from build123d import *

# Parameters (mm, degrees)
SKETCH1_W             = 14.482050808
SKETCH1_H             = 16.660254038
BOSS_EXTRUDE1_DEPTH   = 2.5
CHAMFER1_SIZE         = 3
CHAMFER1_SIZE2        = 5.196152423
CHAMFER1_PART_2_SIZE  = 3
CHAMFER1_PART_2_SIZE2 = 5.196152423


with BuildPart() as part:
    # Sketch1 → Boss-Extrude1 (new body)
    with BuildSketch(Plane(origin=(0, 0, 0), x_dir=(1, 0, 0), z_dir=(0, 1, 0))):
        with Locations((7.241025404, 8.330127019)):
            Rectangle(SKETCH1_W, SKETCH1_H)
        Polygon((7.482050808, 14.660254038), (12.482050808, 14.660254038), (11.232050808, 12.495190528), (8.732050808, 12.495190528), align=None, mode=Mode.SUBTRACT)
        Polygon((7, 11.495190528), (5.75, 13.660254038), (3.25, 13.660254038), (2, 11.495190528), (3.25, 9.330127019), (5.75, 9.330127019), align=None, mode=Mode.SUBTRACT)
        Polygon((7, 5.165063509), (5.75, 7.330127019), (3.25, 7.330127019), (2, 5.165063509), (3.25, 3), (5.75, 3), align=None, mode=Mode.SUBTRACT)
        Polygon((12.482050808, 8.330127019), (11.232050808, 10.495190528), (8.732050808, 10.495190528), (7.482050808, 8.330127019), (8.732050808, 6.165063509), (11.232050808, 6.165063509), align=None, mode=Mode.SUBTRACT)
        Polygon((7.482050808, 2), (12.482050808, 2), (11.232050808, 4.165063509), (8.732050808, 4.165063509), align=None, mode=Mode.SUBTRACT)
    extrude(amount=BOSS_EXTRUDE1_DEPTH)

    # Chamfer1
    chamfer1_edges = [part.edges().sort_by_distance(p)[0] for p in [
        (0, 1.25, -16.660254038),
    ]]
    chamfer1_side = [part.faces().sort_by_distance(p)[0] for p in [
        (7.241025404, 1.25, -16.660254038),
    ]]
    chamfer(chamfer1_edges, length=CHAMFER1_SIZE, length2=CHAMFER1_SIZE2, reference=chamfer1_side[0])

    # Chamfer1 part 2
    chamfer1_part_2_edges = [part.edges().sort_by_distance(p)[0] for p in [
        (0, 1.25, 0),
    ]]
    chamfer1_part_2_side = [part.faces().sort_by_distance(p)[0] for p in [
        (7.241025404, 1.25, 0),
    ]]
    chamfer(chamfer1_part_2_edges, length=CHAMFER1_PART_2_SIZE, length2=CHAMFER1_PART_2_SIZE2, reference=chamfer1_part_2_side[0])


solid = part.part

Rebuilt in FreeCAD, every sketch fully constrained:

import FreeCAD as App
import Part
import Sketcher

V = App.Vector
Q = App.Units.Quantity


def edges_at(feature, points):
    """Names of the edges that pass closest to the given points."""
    edges = feature.Shape.Edges
    near = lambda p: min(range(len(edges)), key=lambda i: edges[i].distToShape(Part.Vertex(*p))[0])
    return sorted({f"Edge{near(p) + 1}" for p in points})

doc = App.newDocument("Part")
params = doc.addObject("Spreadsheet::Sheet", "Params")
for row, (alias, value) in enumerate([
    ("sketch1_width", "5 mm"),
    ("sketch1_width2", "2.5 mm"),
    ("pad1_length", "2.5 mm"),
    ("chamfer_size", "3 mm"),
    ("chamfer_size2", "5.196152 mm"),
    ("chamfer2_size", "3 mm"),
    ("chamfer2_size2", "5.196152 mm"),
], start=1):
    params.set(f"A{row}", alias)
    params.set(f"B{row}", "=" + value)
    params.setAlias(f"B{row}", alias)

body = doc.addObject("PartDesign::Body", "Body")

# Sketch on XZ plane
sketch1 = body.newObject("Sketcher::SketchObject", "Sketch")
sketch1.AttachmentSupport = (doc.getObject("XZ_Plane"), [""])
sketch1.MapMode = "FlatFace"
sketch1.addGeometry([
    Part.LineSegment(V(0, -16.660254, 0), V(0, 0, 0)),  # 0
    Part.LineSegment(V(0, 0, 0), V(14.482051, 0, 0)),  # 1
    Part.LineSegment(V(14.482051, 0, 0), V(14.482051, -16.660254, 0)),  # 2
    Part.LineSegment(V(14.482051, -16.660254, 0), V(0, -16.660254, 0)),  # 3
    Part.LineSegment(V(5.75, -7.330127, 0), V(7, -5.165064, 0)),  # 4
    Part.LineSegment(V(7, -5.165064, 0), V(5.75, -3, 0)),  # 5
    Part.LineSegment(V(5.75, -3, 0), V(3.25, -3, 0)),  # 6
    Part.LineSegment(V(3.25, -3, 0), V(2, -5.165064, 0)),  # 7
    Part.LineSegment(V(2, -5.165064, 0), V(3.25, -7.330127, 0)),  # 8
    Part.LineSegment(V(3.25, -7.330127, 0), V(5.75, -7.330127, 0)),  # 9
    Part.LineSegment(V(12.482051, -2, 0), V(7.482051, -2, 0)),  # 10
    Part.LineSegment(V(7.482051, -2, 0), V(8.732051, -4.165064, 0)),  # 11
    Part.LineSegment(V(8.732051, -4.165064, 0), V(11.232051, -4.165064, 0)),  # 12
    Part.LineSegment(V(11.232051, -4.165064, 0), V(12.482051, -2, 0)),  # 13
    Part.LineSegment(V(11.232051, -10.495191, 0), V(12.482051, -8.330127, 0)),  # 14
    Part.LineSegment(V(12.482051, -8.330127, 0), V(11.232051, -6.165064, 0)),  # 15
    Part.LineSegment(V(11.232051, -6.165064, 0), V(8.732051, -6.165064, 0)),  # 16
    Part.LineSegment(V(8.732051, -6.165064, 0), V(7.482051, -8.330127, 0)),  # 17
    Part.LineSegment(V(7.482051, -8.330127, 0), V(8.732051, -10.495191, 0)),  # 18
    Part.LineSegment(V(8.732051, -10.495191, 0), V(11.232051, -10.495191, 0)),  # 19
    Part.LineSegment(V(5.75, -13.660254, 0), V(7, -11.495191, 0)),  # 20
    Part.LineSegment(V(7, -11.495191, 0), V(5.75, -9.330127, 0)),  # 21
    Part.LineSegment(V(5.75, -9.330127, 0), V(3.25, -9.330127, 0)),  # 22
    Part.LineSegment(V(3.25, -9.330127, 0), V(2, -11.495191, 0)),  # 23
    Part.LineSegment(V(2, -11.495191, 0), V(3.25, -13.660254, 0)),  # 24
    Part.LineSegment(V(3.25, -13.660254, 0), V(5.75, -13.660254, 0)),  # 25
    Part.LineSegment(V(8.732051, -12.495191, 0), V(7.482051, -14.660254, 0)),  # 26
    Part.LineSegment(V(7.482051, -14.660254, 0), V(12.482051, -14.660254, 0)),  # 27
    Part.LineSegment(V(12.482051, -14.660254, 0), V(11.232051, -12.495191, 0)),  # 28
    Part.LineSegment(V(11.232051, -12.495191, 0), V(8.732051, -12.495191, 0)),  # 29
], False)
sketch1.addConstraint([
    Sketcher.Constraint("Coincident", 0, 2, 1, 1),
    Sketcher.Constraint("Coincident", 1, 2, 2, 1),
    Sketcher.Constraint("Coincident", 2, 2, 3, 1),
    Sketcher.Constraint("Coincident", 3, 2, 0, 1),
    Sketcher.Constraint("Coincident", 4, 2, 5, 1),
    Sketcher.Constraint("Coincident", 5, 2, 6, 1),
    Sketcher.Constraint("Coincident", 6, 2, 7, 1),
    Sketcher.Constraint("Coincident", 7, 2, 8, 1),
    Sketcher.Constraint("Coincident", 8, 2, 9, 1),
    Sketcher.Constraint("Coincident", 9, 2, 4, 1),
    Sketcher.Constraint("Coincident", 10, 2, 11, 1),
    Sketcher.Constraint("Coincident", 11, 2, 12, 1),
    Sketcher.Constraint("Coincident", 12, 2, 13, 1),
    Sketcher.Constraint("Coincident", 13, 2, 10, 1),
    Sketcher.Constraint("Coincident", 14, 2, 15, 1),
    Sketcher.Constraint("Coincident", 15, 2, 16, 1),
    Sketcher.Constraint("Coincident", 16, 2, 17, 1),
    Sketcher.Constraint("Coincident", 17, 2, 18, 1),
    Sketcher.Constraint("Coincident", 18, 2, 19, 1),
    Sketcher.Constraint("Coincident", 19, 2, 14, 1),
    Sketcher.Constraint("Coincident", 20, 2, 21, 1),
    Sketcher.Constraint("Coincident", 21, 2, 22, 1),
    Sketcher.Constraint("Coincident", 22, 2, 23, 1),
    Sketcher.Constraint("Coincident", 23, 2, 24, 1),
    Sketcher.Constraint("Coincident", 24, 2, 25, 1),
    Sketcher.Constraint("Coincident", 25, 2, 20, 1),
    Sketcher.Constraint("Coincident", 26, 2, 27, 1),
    Sketcher.Constraint("Coincident", 27, 2, 28, 1),
    Sketcher.Constraint("Coincident", 28, 2, 29, 1),
    Sketcher.Constraint("Coincident", 29, 2, 26, 1),
    Sketcher.Constraint("Vertical", 0),
    Sketcher.Constraint("Horizontal", 1),
    Sketcher.Constraint("Vertical", 2),
    Sketcher.Constraint("Horizontal", 3),
    Sketcher.Constraint("Horizontal", 6),
    Sketcher.Constraint("Horizontal", 9),
    Sketcher.Constraint("Horizontal", 10),
    Sketcher.Constraint("Horizontal", 12),
    Sketcher.Constraint("Horizontal", 16),
    Sketcher.Constraint("Horizontal", 19),
    Sketcher.Constraint("Horizontal", 22),
    Sketcher.Constraint("Horizontal", 25),
    Sketcher.Constraint("Horizontal", 27),
    Sketcher.Constraint("Horizontal", 29),
    Sketcher.Constraint("Coincident", 0, 2, -1, 1),
    Sketcher.Constraint("Parallel", 4, 7),
    Sketcher.Constraint("Parallel", 5, 8),
    Sketcher.Constraint("Parallel", 8, 11),
    Sketcher.Constraint("Parallel", 7, 13),
    Sketcher.Constraint("Parallel", 13, 14),
    Sketcher.Constraint("Parallel", 11, 15),
    Sketcher.Constraint("Parallel", 14, 17),
    Sketcher.Constraint("Parallel", 15, 18),
    Sketcher.Constraint("Parallel", 17, 20),
    Sketcher.Constraint("Parallel", 18, 21),
    Sketcher.Constraint("Parallel", 20, 23),
    Sketcher.Constraint("Parallel", 21, 24),
    Sketcher.Constraint("Parallel", 23, 26),
    Sketcher.Constraint("Parallel", 24, 28),
    Sketcher.Constraint("Horizontal", 4, 2, 7, 2),
    Sketcher.Constraint("Horizontal", 14, 2, 17, 2),
    Sketcher.Constraint("Horizontal", 20, 2, 23, 2),
    Sketcher.Constraint("Vertical", 6, 2, 8, 2),
    Sketcher.Constraint("Vertical", 5, 2, 9, 2),
    Sketcher.Constraint("Vertical", 13, 2, 14, 2),
    Sketcher.Constraint("Vertical", 12, 2, 15, 2),
    Sketcher.Constraint("Vertical", 11, 2, 16, 2),
    Sketcher.Constraint("Vertical", 16, 2, 18, 2),
    Sketcher.Constraint("Vertical", 4, 2, 20, 2),
    Sketcher.Constraint("Vertical", 9, 2, 21, 2),
    Sketcher.Constraint("Vertical", 8, 2, 22, 2),
    Sketcher.Constraint("Vertical", 22, 2, 24, 2),
    Sketcher.Constraint("Vertical", 17, 2, 26, 2),
    Sketcher.Constraint("Vertical", 14, 2, 27, 2),
    Sketcher.Constraint("Vertical", 19, 2, 28, 2),
    Sketcher.Constraint("Equal", 9, 12),
    Sketcher.Constraint("Equal", 8, 11),
    Sketcher.Constraint("DistanceX", 10, 2, 10, 1, Q("5 mm")),
    Sketcher.Constraint("Angle", 4, Q("60 deg")),
    Sketcher.Constraint("DistanceX", 6, 2, 6, 1, Q("2.5 mm")),
    Sketcher.Constraint("DistanceX", -1, 1, 4, 2, Q("7 mm")),
    Sketcher.Constraint("DistanceY", 5, 2, -1, 1, Q("3 mm")),
    Sketcher.Constraint("DistanceY", 10, 2, -1, 1, Q("2 mm")),
    Sketcher.Constraint("DistanceX", 13, 2, 1, 2, Q("2 mm")),
    Sketcher.Constraint("DistanceY", 14, 2, 9, 2, Q("1 mm")),
    Sketcher.Constraint("DistanceY", 20, 2, 18, 2, Q("1 mm")),
    Sketcher.Constraint("DistanceY", 3, 2, 24, 2, Q("3 mm")),
    Sketcher.Constraint("DistanceY", 26, 2, 25, 2, Q("1 mm")),
    Sketcher.Constraint("DistanceX", 1, 1, 1, 2, Q("14.482051 mm")),
])
sketch1.setExpression("Constraints[77]", "Params.sketch1_width")
sketch1.setExpression("Constraints[79]", "Params.sketch1_width2")
pad1 = body.newObject("PartDesign::Pad", "Pad")
pad1.Profile = sketch1
pad1.setExpression("Length", "Params.pad1_length")
pad1.Reversed = True
doc.recompute()

chamfer = body.newObject("PartDesign::Chamfer", "Chamfer")
chamfer.Base = (pad1, edges_at(pad1, [(0, 1.25, -16.66)]))
chamfer.ChamferType = "Two distances"
chamfer.setExpression("Size", "Params.chamfer_size")
chamfer.setExpression("Size2", "Params.chamfer_size2")
chamfer.FlipDirection = True
doc.recompute()

chamfer2 = body.newObject("PartDesign::Chamfer", "Chamfer001")
chamfer2.Base = (chamfer, edges_at(chamfer, [(0, 1.25, 0)]))
chamfer2.ChamferType = "Two distances"
chamfer2.setExpression("Size", "Params.chamfer2_size")
chamfer2.setExpression("Size2", "Params.chamfer2_size2")
chamfer2.FlipDirection = True

doc.recompute()
